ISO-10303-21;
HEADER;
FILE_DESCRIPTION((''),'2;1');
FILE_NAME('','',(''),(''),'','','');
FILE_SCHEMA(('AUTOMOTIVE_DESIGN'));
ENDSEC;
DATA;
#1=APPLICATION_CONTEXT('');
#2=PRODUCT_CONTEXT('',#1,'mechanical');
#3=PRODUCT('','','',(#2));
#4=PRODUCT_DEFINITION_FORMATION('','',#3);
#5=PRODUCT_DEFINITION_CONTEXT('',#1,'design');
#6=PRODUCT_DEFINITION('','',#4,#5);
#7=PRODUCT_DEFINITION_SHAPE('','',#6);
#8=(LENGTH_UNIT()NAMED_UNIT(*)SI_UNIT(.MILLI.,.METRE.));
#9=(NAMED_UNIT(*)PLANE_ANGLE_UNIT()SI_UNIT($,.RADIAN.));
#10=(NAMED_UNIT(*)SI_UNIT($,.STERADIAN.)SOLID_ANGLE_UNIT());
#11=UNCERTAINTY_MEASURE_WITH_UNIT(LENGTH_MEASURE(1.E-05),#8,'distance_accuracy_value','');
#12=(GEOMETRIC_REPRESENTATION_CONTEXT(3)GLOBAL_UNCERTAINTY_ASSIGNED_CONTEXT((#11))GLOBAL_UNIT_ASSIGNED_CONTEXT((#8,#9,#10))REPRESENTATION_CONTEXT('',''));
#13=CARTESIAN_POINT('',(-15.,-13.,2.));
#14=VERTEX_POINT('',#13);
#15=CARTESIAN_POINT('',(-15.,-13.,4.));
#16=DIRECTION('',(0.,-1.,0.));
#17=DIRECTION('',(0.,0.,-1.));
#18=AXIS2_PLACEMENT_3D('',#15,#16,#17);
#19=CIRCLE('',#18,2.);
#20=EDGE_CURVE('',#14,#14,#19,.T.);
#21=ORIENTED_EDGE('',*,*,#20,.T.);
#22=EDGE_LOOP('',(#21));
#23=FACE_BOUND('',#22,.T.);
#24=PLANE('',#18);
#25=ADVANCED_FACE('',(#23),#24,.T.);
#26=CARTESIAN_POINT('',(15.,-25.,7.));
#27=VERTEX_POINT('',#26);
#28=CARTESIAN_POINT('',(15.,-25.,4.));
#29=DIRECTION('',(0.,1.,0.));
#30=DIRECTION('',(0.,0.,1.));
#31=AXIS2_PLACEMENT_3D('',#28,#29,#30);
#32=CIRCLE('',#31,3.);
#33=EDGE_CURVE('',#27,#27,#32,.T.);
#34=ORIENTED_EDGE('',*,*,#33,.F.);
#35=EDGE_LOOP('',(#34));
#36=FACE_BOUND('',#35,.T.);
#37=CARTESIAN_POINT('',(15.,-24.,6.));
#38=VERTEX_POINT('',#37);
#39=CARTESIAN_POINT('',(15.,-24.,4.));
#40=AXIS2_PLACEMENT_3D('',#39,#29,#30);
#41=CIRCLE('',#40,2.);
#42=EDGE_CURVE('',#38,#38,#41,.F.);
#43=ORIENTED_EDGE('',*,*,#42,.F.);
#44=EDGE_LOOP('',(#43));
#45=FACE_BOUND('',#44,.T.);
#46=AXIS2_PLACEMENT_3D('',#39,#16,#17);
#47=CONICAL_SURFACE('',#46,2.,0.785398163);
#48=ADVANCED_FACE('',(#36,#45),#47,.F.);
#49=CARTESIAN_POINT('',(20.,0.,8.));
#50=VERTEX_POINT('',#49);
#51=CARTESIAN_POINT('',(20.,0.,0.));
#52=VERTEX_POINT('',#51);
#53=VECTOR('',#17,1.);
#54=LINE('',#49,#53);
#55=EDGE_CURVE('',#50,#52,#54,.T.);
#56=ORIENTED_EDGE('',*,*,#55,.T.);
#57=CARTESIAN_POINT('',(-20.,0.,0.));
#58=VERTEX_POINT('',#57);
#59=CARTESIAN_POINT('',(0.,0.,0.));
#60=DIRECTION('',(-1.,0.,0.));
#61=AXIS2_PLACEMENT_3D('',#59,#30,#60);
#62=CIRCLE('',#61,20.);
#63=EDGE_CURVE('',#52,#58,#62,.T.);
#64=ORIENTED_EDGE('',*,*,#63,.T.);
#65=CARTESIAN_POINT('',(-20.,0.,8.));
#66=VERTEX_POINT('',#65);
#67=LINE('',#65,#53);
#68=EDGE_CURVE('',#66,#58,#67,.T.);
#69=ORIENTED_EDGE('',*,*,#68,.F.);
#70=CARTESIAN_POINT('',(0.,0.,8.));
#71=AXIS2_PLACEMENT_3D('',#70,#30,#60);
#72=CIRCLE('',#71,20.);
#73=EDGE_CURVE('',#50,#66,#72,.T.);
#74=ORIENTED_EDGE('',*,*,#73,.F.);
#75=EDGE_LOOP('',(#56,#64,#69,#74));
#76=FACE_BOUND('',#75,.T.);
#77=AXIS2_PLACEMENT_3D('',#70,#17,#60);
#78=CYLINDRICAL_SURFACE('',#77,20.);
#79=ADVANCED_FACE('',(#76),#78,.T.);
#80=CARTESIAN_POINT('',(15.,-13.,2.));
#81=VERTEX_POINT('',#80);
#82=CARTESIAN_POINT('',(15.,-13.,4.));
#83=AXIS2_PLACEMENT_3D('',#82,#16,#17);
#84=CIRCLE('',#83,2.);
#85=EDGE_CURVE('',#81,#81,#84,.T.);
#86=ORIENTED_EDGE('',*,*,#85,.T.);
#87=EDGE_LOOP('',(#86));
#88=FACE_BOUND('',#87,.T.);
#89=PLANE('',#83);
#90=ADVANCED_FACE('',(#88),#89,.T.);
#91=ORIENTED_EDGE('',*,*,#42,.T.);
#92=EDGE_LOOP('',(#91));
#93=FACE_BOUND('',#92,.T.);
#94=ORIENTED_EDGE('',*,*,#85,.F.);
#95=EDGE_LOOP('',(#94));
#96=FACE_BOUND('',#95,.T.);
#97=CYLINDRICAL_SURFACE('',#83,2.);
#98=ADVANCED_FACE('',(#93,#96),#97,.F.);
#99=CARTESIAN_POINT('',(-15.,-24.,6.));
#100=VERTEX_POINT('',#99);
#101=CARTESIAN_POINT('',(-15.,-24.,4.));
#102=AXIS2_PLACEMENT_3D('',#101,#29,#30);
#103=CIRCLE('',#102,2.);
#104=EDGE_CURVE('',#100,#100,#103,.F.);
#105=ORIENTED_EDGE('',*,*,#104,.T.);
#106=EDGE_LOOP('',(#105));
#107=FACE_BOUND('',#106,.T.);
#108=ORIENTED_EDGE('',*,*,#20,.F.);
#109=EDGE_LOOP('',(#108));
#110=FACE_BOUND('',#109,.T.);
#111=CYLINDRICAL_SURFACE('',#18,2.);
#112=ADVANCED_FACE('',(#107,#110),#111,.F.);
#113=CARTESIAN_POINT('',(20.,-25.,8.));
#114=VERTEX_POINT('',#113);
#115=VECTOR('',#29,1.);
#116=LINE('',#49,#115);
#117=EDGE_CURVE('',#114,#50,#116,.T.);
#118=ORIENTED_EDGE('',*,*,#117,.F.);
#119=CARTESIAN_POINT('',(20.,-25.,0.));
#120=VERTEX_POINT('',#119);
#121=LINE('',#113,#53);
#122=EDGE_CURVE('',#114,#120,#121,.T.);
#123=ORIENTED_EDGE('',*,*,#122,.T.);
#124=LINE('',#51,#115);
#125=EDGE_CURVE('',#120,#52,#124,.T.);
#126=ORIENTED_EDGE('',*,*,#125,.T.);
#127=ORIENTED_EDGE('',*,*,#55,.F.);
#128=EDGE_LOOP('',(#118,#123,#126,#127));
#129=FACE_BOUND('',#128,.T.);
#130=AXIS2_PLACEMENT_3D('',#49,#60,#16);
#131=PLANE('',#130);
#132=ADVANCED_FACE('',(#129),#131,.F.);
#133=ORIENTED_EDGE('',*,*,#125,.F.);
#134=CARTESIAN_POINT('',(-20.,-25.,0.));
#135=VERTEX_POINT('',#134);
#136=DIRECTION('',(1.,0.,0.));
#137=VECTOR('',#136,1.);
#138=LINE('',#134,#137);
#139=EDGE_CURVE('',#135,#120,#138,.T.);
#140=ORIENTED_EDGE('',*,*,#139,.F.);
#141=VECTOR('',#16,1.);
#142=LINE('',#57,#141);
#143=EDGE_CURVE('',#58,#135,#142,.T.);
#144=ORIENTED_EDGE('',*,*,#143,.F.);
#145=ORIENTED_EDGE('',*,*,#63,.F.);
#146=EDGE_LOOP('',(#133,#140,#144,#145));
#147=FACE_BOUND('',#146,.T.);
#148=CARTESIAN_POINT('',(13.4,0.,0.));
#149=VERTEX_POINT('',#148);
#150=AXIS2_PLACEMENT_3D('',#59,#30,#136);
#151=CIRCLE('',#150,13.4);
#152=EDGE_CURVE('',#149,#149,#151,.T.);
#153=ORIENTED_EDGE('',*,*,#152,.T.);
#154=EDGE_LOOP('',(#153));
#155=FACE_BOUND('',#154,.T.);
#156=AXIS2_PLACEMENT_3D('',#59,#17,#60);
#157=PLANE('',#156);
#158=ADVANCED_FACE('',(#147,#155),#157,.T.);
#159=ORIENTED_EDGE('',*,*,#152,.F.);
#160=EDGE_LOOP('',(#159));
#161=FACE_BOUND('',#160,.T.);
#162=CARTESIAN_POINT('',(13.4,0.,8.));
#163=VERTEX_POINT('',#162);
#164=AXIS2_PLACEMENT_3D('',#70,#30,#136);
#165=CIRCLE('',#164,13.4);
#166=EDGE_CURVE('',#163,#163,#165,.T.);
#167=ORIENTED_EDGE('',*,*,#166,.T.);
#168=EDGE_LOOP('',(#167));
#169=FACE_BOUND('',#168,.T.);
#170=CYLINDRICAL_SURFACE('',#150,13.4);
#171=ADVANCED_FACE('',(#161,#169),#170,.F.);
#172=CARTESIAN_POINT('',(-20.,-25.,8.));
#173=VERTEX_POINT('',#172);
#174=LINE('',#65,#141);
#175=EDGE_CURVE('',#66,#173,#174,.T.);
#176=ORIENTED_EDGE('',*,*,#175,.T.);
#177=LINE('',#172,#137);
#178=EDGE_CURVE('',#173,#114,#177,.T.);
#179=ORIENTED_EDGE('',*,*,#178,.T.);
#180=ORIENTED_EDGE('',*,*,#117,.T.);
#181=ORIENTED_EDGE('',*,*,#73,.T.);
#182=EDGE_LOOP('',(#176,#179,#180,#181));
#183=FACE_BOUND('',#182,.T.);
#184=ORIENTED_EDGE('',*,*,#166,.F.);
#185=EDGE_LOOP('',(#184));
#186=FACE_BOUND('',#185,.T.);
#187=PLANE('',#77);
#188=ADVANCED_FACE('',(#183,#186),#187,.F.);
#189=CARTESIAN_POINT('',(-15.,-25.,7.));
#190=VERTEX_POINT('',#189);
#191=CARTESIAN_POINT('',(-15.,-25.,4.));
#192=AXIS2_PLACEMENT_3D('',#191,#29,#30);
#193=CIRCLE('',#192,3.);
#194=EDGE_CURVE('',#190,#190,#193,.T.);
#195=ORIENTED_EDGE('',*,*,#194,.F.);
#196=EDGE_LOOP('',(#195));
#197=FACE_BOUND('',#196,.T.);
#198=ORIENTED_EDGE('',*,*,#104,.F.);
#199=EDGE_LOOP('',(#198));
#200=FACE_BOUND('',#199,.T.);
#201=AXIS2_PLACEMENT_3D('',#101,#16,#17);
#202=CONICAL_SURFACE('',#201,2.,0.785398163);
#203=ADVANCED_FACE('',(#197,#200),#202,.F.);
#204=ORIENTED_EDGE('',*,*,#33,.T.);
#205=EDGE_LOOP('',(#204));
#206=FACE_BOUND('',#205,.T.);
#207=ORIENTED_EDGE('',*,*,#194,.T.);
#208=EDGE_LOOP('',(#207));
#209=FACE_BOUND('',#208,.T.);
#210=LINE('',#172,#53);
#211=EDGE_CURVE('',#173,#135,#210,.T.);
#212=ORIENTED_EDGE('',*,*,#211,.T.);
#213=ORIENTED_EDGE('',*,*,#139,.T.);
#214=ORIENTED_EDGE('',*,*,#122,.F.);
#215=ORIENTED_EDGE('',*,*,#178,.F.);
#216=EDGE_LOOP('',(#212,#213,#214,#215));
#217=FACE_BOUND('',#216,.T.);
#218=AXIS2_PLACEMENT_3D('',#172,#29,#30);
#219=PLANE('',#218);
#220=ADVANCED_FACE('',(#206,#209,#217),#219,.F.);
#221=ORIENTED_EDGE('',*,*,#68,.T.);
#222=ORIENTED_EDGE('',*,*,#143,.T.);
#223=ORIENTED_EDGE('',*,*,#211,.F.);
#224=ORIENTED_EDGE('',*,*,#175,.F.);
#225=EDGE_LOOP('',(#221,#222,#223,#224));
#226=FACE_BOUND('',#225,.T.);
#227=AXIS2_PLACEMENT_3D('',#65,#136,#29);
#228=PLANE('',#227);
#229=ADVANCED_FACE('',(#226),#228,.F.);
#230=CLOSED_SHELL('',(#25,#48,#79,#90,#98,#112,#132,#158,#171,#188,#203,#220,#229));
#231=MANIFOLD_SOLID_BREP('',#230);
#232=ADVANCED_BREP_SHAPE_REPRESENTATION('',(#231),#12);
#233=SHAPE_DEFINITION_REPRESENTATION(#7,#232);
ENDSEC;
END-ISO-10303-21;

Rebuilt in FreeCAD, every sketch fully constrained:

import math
import FreeCAD as App
import Part
import Sketcher
from FreeCAD import Vector
Q = App.Units.Quantity


def edges_at(feature, points):
    """Names of the edges that pass closest to the given points."""
    edges = feature.Shape.Edges
    near = lambda p: min(range(len(edges)), key=lambda i: edges[i].distToShape(Part.Vertex(*p))[0])
    return sorted({f"Edge{near(p) + 1}" for p in points})

doc = App.newDocument("Part")
body = doc.addObject("PartDesign::Body", "Body")

# Sketch on XY plane
sketch1 = body.newObject("Sketcher::SketchObject", "Sketch")
sketch1.AttachmentSupport = (doc.getObject("XY_Plane"), [""])
sketch1.MapMode = "FlatFace"
sketch1.addGeometry([
    Part.LineSegment(Vector(-20, 0, 0), Vector(-20, -25, 0)),  # 0
    Part.LineSegment(Vector(-20, -25, 0), Vector(20, -25, 0)),  # 1
    Part.LineSegment(Vector(20, -25, 0), Vector(20, 0, 0)),  # 2
    Part.ArcOfCircle(Part.Circle(Vector(0, 0, 0), Vector(0, 0, 1), 20), math.radians(0), math.radians(180)),  # 3
    Part.Circle(Vector(-10, 0, 0), Vector(0, 0, 1), 1.8),  # 4
    Part.Circle(Vector(0, -10, 0), Vector(0, 0, 1), 1.8),  # 5
    Part.Circle(Vector(0, 0, 0), Vector(0, 0, 1), 7),  # 6
    Part.Circle(Vector(10, 0, 0), Vector(0, 0, 1), 1.8),  # 7
    Part.Circle(Vector(0, 10, 0), Vector(0, 0, 1), 1.8),  # 8
], False)
sketch1.addConstraint([
    Sketcher.Constraint("Coincident", 0, 2, 1, 1),
    Sketcher.Constraint("Coincident", 1, 2, 2, 1),
    Sketcher.Constraint("Tangent", 2, 2, 3, 1),
    Sketcher.Constraint("Tangent", 3, 2, 0, 1),
    Sketcher.Constraint("Vertical", 0),
    Sketcher.Constraint("Horizontal", 1),
    Sketcher.Constraint("Vertical", 2),
    Sketcher.Constraint("Coincident", 3, 3, -1, 1),
    Sketcher.Constraint("Coincident", 6, 3, -1, 1),
    Sketcher.Constraint("Equal", 4, 5),
    Sketcher.Constraint("Equal", 5, 7),
    Sketcher.Constraint("Equal", 7, 8),
    Sketcher.Constraint("Symmetric", 4, 3, 7, 3, -1, 1),
    Sketcher.Constraint("Symmetric", 5, 3, 8, 3, -1, 1),
    Sketcher.Constraint("PointOnObject", 4, 3, -1),
    Sketcher.Constraint("PointOnObject", 5, 3, -2),
    Sketcher.Constraint("Diameter", 6, Q("14 mm")),
    Sketcher.Constraint("Radius", 3, Q("20 mm")),
    Sketcher.Constraint("Diameter", 4, Q("3.6 mm")),
    Sketcher.Constraint("DistanceY", 0, 2, 0, 1, Q("25 mm")),
    Sketcher.Constraint("DistanceX", 4, 3, -1, 1, Q("10 mm")),
    Sketcher.Constraint("DistanceY", 5, 3, -1, 1, Q("10 mm")),
])
pad1 = body.newObject("PartDesign::Pad", "Pad")
pad1.Profile = sketch1
pad1.Length = 8

# Sketch on XY plane
sketch2 = body.newObject("Sketcher::SketchObject", "Sketch001")
sketch2.AttachmentSupport = (doc.getObject("XY_Plane"), [""])
sketch2.MapMode = "FlatFace"
sketch2.AttachmentOffset = App.Placement(Vector(0, 0, 8), App.Rotation())
sketch2.addGeometry(Part.Circle(Vector(0, 0, 0), Vector(0, 0, 1), 13.4), False)
sketch2.addConstraint([
    Sketcher.Constraint("Coincident", 0, 3, -1, 1),
    Sketcher.Constraint("Diameter", 0, Q("26.8 mm")),
])
pocket1 = body.newObject("PartDesign::Pocket", "Pocket")
pocket1.Profile = sketch2
pocket1.Type = "ThroughAll"

# Sketch on XZ plane
sketch3 = body.newObject("Sketcher::SketchObject", "Sketch002")
sketch3.AttachmentSupport = (doc.getObject("XZ_Plane"), [""])
sketch3.MapMode = "FlatFace"
sketch3.AttachmentOffset = App.Placement(Vector(0, 0, 25), App.Rotation())
sketch3.addGeometry([
    Part.Circle(Vector(-15, 4, 0), Vector(0, 0, 1), 2),
    Part.Circle(Vector(15, 4, 0), Vector(0, 0, 1), 2),
], False)
sketch3.addConstraint([
    Sketcher.Constraint("Equal", 0, 1),
    Sketcher.Constraint("Symmetric", 0, 3, 1, 3, -2),
    Sketcher.Constraint("Diameter", 0, Q("4 mm")),
    Sketcher.Constraint("DistanceX", 0, 3, -1, 1, Q("15 mm")),
    Sketcher.Constraint("DistanceY", -1, 1, 0, 3, Q("4 mm")),
])
pocket2 = body.newObject("PartDesign::Pocket", "Pocket001")
pocket2.Profile = sketch3
pocket2.Length = 12
doc.recompute()

chamfer = body.newObject("PartDesign::Chamfer", "Chamfer")
chamfer.Base = (pocket2, edges_at(pocket2, [(-17, -25, 4), (13, -25, 4)]))
chamfer.Size = 1

doc.recompute()
